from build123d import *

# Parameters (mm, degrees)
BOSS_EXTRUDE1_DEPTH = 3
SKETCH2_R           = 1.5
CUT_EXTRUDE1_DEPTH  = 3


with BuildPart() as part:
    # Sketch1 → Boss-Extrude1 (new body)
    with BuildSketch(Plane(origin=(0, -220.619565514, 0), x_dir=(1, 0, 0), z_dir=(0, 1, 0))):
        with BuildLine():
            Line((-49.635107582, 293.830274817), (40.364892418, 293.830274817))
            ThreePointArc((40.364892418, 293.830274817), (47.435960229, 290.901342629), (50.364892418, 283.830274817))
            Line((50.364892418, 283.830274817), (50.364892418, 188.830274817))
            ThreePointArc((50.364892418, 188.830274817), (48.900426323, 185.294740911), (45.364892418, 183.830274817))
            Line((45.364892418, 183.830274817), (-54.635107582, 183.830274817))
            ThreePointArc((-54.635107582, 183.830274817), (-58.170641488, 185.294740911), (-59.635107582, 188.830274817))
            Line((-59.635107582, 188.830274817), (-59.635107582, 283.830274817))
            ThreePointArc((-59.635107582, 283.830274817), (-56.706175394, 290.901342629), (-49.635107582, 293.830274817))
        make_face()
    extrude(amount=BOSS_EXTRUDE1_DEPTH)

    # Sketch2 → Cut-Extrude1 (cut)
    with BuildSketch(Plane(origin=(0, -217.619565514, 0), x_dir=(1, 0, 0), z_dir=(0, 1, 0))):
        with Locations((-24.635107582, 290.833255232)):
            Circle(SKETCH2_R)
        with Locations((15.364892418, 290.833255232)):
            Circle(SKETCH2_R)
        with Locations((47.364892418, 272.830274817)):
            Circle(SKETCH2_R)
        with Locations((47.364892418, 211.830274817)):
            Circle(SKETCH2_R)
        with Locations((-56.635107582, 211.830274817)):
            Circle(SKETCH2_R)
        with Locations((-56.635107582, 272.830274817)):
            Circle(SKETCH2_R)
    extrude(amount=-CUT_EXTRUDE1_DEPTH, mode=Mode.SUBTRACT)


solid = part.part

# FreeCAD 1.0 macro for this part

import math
import FreeCAD as App
import Part
import Sketcher
from FreeCAD import Vector

doc = App.newDocument("Part")
body = doc.addObject("PartDesign::Body", "Body")

sketch1 = body.newObject("Sketcher::SketchObject", "Sketch")
sketch1.AttachmentSupport = (doc.getObject("XZ_Plane"), [""])
sketch1.MapMode = "FlatFace"
sketch1.AttachmentOffset = App.Placement(Vector(0, 0, 220.619566), App.Rotation())
sketch1.addGeometry([
    Part.LineSegment(Vector(40, -294, 0), Vector(-50, -294, 0)),
    Part.ArcOfCircle(Part.Circle(Vector(-50, -284, 0), Vector(0, 0, 1), 10), math.radians(180), math.radians(270)),
    Part.LineSegment(Vector(-60, -284, 0), Vector(-60, -189, 0)),
    Part.ArcOfCircle(Part.Circle(Vector(-55, -189, 0), Vector(0, 0, 1), 5), math.radians(90), math.radians(180)),
    Part.LineSegment(Vector(-55, -184, 0), Vector(45, -184, 0)),
    Part.ArcOfCircle(Part.Circle(Vector(45, -189, 0), Vector(0, 0, 1), 5), math.radians(0), math.radians(90)),
    Part.LineSegment(Vector(50, -189, 0), Vector(50, -284, 0)),
    Part.ArcOfCircle(Part.Circle(Vector(40, -284, 0), Vector(0, 0, 1), 10), math.radians(-90), math.radians(0)),
], False)
sketch1.addConstraint([
    Sketcher.Constraint("Tangent", 0, 2, 1, 2),
    Sketcher.Constraint("Tangent", 1, 1, 2, 1),
    Sketcher.Constraint("Tangent", 2, 2, 3, 2),
    Sketcher.Constraint("Tangent", 3, 1, 4, 1),
    Sketcher.Constraint("Tangent", 4, 2, 5, 2),
    Sketcher.Constraint("Tangent", 5, 1, 6, 1),
    Sketcher.Constraint("Tangent", 6, 2, 7, 2),
    Sketcher.Constraint("Tangent", 7, 1, 0, 1),
    Sketcher.Constraint("Horizontal", 0),
    Sketcher.Constraint("Vertical", 2),
    Sketcher.Constraint("Horizontal", 4),
    Sketcher.Constraint("Vertical", 6),
    Sketcher.Constraint("Equal", 3, 5),
    Sketcher.Constraint("Equal", 1, 7),
    Sketcher.Constraint("Radius", 1, 10.0),
    Sketcher.Constraint("Radius", 3, 5.0),
    Sketcher.Constraint("DistanceX", 0, 2, 0, 1, 90.0),
    Sketcher.Constraint("DistanceY", 2, 1, 2, 2, 95.0),
    Sketcher.Constraint("DistanceX", 1, 3, -1, 1, 49.635108),
    Sketcher.Constraint("DistanceY", 1, 3, -1, 1, 283.830275),
])
pad1 = body.newObject("PartDesign::Pad", "Pad")
pad1.Profile = sketch1
pad1.Length = 3
pad1.Reversed = True

sketch2 = body.newObject("Sketcher::SketchObject", "Sketch001")
sketch2.AttachmentSupport = (doc.getObject("XZ_Plane"), [""])
sketch2.MapMode = "FlatFace"
sketch2.AttachmentOffset = App.Placement(Vector(0, 0, 217.619566), App.Rotation())
sketch2.addGeometry([
    Part.Circle(Vector(-24.6, -290.8, 0), Vector(0, 0, 1), 1.5),
    Part.Circle(Vector(15.4, -290.8, 0), Vector(0, 0, 1), 1.5),
    Part.Circle(Vector(47.4, -272.8, 0), Vector(0, 0, 1), 1.5),
    Part.Circle(Vector(47.4, -211.8, 0), Vector(0, 0, 1), 1.5),
    Part.Circle(Vector(-56.6, -211.8, 0), Vector(0, 0, 1), 1.5),
    Part.Circle(Vector(-56.6, -272.8, 0), Vector(0, 0, 1), 1.5),
], False)
sketch2.addConstraint([
    Sketcher.Constraint("Equal", 0, 1),
    Sketcher.Constraint("Equal", 1, 2),
    Sketcher.Constraint("Equal", 2, 3),
    Sketcher.Constraint("Equal", 3, 4),
    Sketcher.Constraint("Equal", 4, 5),
    Sketcher.Constraint("Horizontal", 0, 3, 1, 3),
    Sketcher.Constraint("Horizontal", 3, 3, 4, 3),
    Sketcher.Constraint("Horizontal", 2, 3, 5, 3),
    Sketcher.Constraint("Vertical", 2, 3, 3, 3),
    Sketcher.Constraint("Vertical", 4, 3, 5, 3),
    Sketcher.Constraint("Diameter", 0, 3.0),
    Sketcher.Constraint("DistanceX", 0, 3, 1, 3, 40.0),
    Sketcher.Constraint("DistanceX", 1, 3, 2, 3, 32.0),
    Sketcher.Constraint("DistanceY", 2, 3, 3, 3, 61.0),
    Sketcher.Constraint("DistanceX", 4, 3, 0, 3, 32.0),
    Sketcher.Constraint("DistanceY", 1, 3, 2, 3, 18.00298),
    Sketcher.Constraint("DistanceX", 0, 3, -1, 1, 24.635108),
    Sketcher.Constraint("DistanceY", 0, 3, -1, 1, 290.833255),
])
pocket1 = body.newObject("PartDesign::Pocket", "Pocket")
pocket1.Profile = sketch2
pocket1.Length = 3
pocket1.Reversed = True

doc.recompute()
